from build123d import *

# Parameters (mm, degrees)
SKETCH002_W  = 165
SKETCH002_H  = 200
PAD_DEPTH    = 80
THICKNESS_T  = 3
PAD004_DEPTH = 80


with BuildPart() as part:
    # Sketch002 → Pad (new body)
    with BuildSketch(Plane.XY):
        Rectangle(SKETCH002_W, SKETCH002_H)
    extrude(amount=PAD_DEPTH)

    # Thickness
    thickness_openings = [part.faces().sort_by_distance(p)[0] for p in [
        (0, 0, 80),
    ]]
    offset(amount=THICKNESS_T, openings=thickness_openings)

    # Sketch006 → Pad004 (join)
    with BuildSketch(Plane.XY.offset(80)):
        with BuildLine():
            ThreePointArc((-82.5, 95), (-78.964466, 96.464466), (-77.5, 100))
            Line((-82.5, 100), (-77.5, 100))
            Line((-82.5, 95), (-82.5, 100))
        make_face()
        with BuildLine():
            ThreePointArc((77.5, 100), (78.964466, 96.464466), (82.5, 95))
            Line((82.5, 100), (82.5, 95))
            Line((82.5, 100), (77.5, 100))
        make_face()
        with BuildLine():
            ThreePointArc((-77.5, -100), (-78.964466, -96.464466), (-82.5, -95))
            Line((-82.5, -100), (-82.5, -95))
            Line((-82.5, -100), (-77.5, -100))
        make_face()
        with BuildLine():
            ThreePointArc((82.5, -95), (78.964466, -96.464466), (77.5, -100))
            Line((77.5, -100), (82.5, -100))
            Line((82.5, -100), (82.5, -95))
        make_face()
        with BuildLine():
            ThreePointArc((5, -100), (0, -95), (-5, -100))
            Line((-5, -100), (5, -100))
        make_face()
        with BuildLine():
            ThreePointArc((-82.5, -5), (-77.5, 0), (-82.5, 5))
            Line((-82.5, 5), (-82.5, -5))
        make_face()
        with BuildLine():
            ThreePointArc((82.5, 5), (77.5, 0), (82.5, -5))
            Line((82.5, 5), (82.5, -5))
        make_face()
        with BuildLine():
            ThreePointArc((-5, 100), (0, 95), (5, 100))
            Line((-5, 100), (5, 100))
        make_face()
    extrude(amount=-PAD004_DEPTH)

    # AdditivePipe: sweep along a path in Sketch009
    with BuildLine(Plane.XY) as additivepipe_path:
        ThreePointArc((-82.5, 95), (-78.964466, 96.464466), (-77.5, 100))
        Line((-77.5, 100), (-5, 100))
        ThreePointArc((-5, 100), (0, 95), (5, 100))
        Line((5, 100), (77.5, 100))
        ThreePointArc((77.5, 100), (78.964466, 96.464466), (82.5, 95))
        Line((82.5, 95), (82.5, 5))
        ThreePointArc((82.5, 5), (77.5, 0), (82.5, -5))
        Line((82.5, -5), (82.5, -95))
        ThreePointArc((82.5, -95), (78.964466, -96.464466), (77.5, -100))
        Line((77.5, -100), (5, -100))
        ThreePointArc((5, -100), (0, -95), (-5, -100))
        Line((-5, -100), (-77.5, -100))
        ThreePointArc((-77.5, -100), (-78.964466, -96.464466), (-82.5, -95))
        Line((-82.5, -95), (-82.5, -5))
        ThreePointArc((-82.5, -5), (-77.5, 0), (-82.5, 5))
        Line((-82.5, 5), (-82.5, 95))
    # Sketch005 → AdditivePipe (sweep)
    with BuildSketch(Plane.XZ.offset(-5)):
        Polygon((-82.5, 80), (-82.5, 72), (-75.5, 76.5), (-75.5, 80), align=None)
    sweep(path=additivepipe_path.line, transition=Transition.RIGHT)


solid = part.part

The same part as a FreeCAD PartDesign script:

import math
import FreeCAD as App
import Part
import Sketcher
from FreeCAD import Vector
Q = App.Units.Quantity


def faces_at(feature, points):
    """Names of the faces that lie closest to the given points."""
    faces = feature.Shape.Faces
    near = lambda p: min(range(len(faces)), key=lambda i: faces[i].distToShape(Part.Vertex(*p))[0])
    return sorted({f"Face{near(p) + 1}" for p in points})


def add_polygon(sketch, points):
    """Adds a closed chain of lines whose ends are joined by coincident constraints."""
    first, n = sketch.GeometryCount, len(points)
    for a, b in zip(points, points[1:] + points[:1]):
        sketch.addGeometry(Part.LineSegment(App.Vector(*a, 0), App.Vector(*b, 0)), False)
    for i in range(n):
        sketch.addConstraint(Sketcher.Constraint("Coincident", first + i, 2, first + (i + 1) % n, 1))

doc = App.newDocument("Part")
body = doc.addObject("PartDesign::Body", "Body")

sketch1 = doc.addObject("Sketcher::SketchObject", "Sketch")
body.addObject(sketch1)
sketch1.AttachmentSupport = (doc.XY_Plane, [""])
sketch1.MapMode = "FlatFace"
add_polygon(sketch1, [(-82, 100), (-82, -100), (82, -100), (82, 100)])
sketch1.addConstraint([
    Sketcher.Constraint("Vertical", 0),
    Sketcher.Constraint("Horizontal", 1),
    Sketcher.Constraint("Vertical", 2),
    Sketcher.Constraint("Horizontal", 3),
    Sketcher.Constraint("Symmetric", 0, 2, 2, 2, -1, 1),
    Sketcher.Constraint("DistanceX", 1, 1, 1, 2, Q("165 mm")),
    Sketcher.Constraint("DistanceY", 0, 2, 0, 1, Q("200 mm")),
])
pad1 = doc.addObject("PartDesign::Pad", "Pad")
body.addObject(pad1)
pad1.Profile = sketch1
pad1.Length = 80
doc.recompute()

thickness = doc.addObject("PartDesign::Thickness", "Thickness")
body.addObject(thickness)
thickness.Base = (pad1, faces_at(pad1, [(0, 0, 80)]))
thickness.Value = 3
thickness.Reversed = False
thickness.Join = "Arc"

sketch2 = doc.addObject("Sketcher::SketchObject", "Sketch001")
body.addObject(sketch2)
sketch2.AttachmentSupport = (doc.XY_Plane, [""])
sketch2.MapMode = "FlatFace"
sketch2.AttachmentOffset = App.Placement(Vector(0, 0, 80), App.Rotation())
sketch2.addGeometry([
    Part.ArcOfCircle(Part.Circle(Vector(-82.5, 100, 0), Vector(0, 0, 1), 5), math.radians(-90), math.radians(0)),
    Part.LineSegment(Vector(-77.5, 100, 0), Vector(-82.5, 100, 0)),
    Part.LineSegment(Vector(-82.5, 100, 0), Vector(-82.5, 95, 0)),
    Part.ArcOfCircle(Part.Circle(Vector(82.5, 100, 0), Vector(0, 0, 1), 5), math.radians(180), math.radians(270)),
    Part.LineSegment(Vector(82.5, 95, 0), Vector(82.5, 100, 0)),
    Part.LineSegment(Vector(82.5, 100, 0), Vector(77.5, 100, 0)),
    Part.ArcOfCircle(Part.Circle(Vector(-82.5, -100, 0), Vector(0, 0, 1), 5), math.radians(0), math.radians(90)),
    Part.LineSegment(Vector(-82.5, -95, 0), Vector(-82.5, -100, 0)),
    Part.LineSegment(Vector(-82.5, -100, 0), Vector(-77.5, -100, 0)),
    Part.ArcOfCircle(Part.Circle(Vector(82.5, -100, 0), Vector(0, 0, 1), 5), math.radians(90), math.radians(180)),
    Part.LineSegment(Vector(77.5, -100, 0), Vector(82.5, -100, 0)),
    Part.LineSegment(Vector(82.5, -100, 0), Vector(82.5, -95, 0)),
    Part.ArcOfCircle(Part.Circle(Vector(0, -100, 0), Vector(0, 0, 1), 5), math.radians(0), math.radians(180)),
    Part.LineSegment(Vector(-5, -100, 0), Vector(5, -100, 0)),
    Part.ArcOfCircle(Part.Circle(Vector(-82.5, 0, 0), Vector(0, 0, 1), 5), math.radians(-90), math.radians(90)),
    Part.LineSegment(Vector(-82.5, 5, 0), Vector(-82.5, -5, 0)),
    Part.ArcOfCircle(Part.Circle(Vector(82.5, 0, 0), Vector(0, 0, 1), 5), math.radians(90), math.radians(270)),
    Part.LineSegment(Vector(82.5, -5, 0), Vector(82.5, 5, 0)),
    Part.ArcOfCircle(Part.Circle(Vector(0, 100, 0), Vector(0, 0, 1), 5), math.radians(180), math.radians(360)),
    Part.LineSegment(Vector(5, 100, 0), Vector(-5, 100, 0)),
], False)
sketch2.addConstraint([
    Sketcher.Constraint("Coincident", 0, 2, 1, 1),
    Sketcher.Constraint("Coincident", 1, 2, 2, 1),
    Sketcher.Constraint("Coincident", 2, 2, 0, 1),
    Sketcher.Constraint("Coincident", 3, 2, 4, 1),
    Sketcher.Constraint("Coincident", 4, 2, 5, 1),
    Sketcher.Constraint("Coincident", 5, 2, 3, 1),
    Sketcher.Constraint("Coincident", 6, 2, 7, 1),
    Sketcher.Constraint("Coincident", 7, 2, 8, 1),
    Sketcher.Constraint("Coincident", 8, 2, 6, 1),
    Sketcher.Constraint("Coincident", 9, 2, 10, 1),
    Sketcher.Constraint("Coincident", 10, 2, 11, 1),
    Sketcher.Constraint("Coincident", 11, 2, 9, 1),
    Sketcher.Constraint("Coincident", 12, 1, 13, 2),
    Sketcher.Constraint("Coincident", 13, 1, 12, 2),
    Sketcher.Constraint("Coincident", 14, 1, 15, 2),
    Sketcher.Constraint("Coincident", 15, 1, 14, 2),
    Sketcher.Constraint("Coincident", 16, 1, 17, 2),
    Sketcher.Constraint("Coincident", 17, 1, 16, 2),
    Sketcher.Constraint("Coincident", 18, 1, 19, 2),
    Sketcher.Constraint("Coincident", 19, 1, 18, 2),
    Sketcher.Constraint("Horizontal", 1),
    Sketcher.Constraint("Vertical", 2),
    Sketcher.Constraint("Vertical", 4),
    Sketcher.Constraint("Horizontal", 5),
    Sketcher.Constraint("Vertical", 7),
    Sketcher.Constraint("Horizontal", 8),
    Sketcher.Constraint("Horizontal", 10),
    Sketcher.Constraint("Vertical", 11),
    Sketcher.Constraint("Horizontal", 13),
    Sketcher.Constraint("Vertical", 15),
    Sketcher.Constraint("Vertical", 17),
    Sketcher.Constraint("Horizontal", 19),
    Sketcher.Constraint("Coincident", 1, 2, 0, 3),
    Sketcher.Constraint("Coincident", 4, 2, 3, 3),
    Sketcher.Constraint("Coincident", 7, 2, 6, 3),
    Sketcher.Constraint("Coincident", 10, 2, 9, 3),
    Sketcher.Constraint("Equal", 0, 3),
    Sketcher.Constraint("Equal", 3, 6),
    Sketcher.Constraint("Equal", 6, 9),
    Sketcher.Constraint("Equal", 9, 12),
    Sketcher.Constraint("Equal", 12, 14),
    Sketcher.Constraint("Equal", 14, 16),
    Sketcher.Constraint("Equal", 16, 18),
    Sketcher.Constraint("Symmetric", 3, 3, 6, 3, -1, 1),
    Sketcher.Constraint("Symmetric", 0, 3, 9, 3, -1, 1),
    Sketcher.Constraint("Symmetric", 14, 3, 16, 3, -1, 1),
    Sketcher.Constraint("Symmetric", 12, 3, 18, 3, -1, 1),
    Sketcher.Constraint("Symmetric", 0, 3, 3, 3, -2),
    Sketcher.Constraint("Symmetric", 15, 1, 16, 1, -2),
    Sketcher.Constraint("Symmetric", 13, 1, 18, 1, -1),
    Sketcher.Constraint("Horizontal", 9, 3, 12, 3),
    Sketcher.Constraint("Horizontal", 10, 2, 12, 1),
    Sketcher.Constraint("Vertical", 6, 3, 14, 3),
    Sketcher.Constraint("Vertical", 7, 2, 14, 1),
    Sketcher.Constraint("Radius", 0, Q("5 mm")),
    Sketcher.Constraint("DistanceY", -1, 1, 0, 3, Q("100 mm")),
    Sketcher.Constraint("DistanceX", 0, 3, 3, 3, Q("164.999999 mm")),
])
pad2 = doc.addObject("PartDesign::Pad", "Pad001")
body.addObject(pad2)
pad2.Profile = sketch2
pad2.Length = 80
pad2.Reversed = True

sketch3 = doc.addObject("Sketcher::SketchObject", "Sketch002")
body.addObject(sketch3)
sketch3.AttachmentSupport = (doc.XZ_Plane, [""])
sketch3.MapMode = "FlatFace"
sketch3.AttachmentOffset = App.Placement(Vector(0, 0, -5), App.Rotation())
add_polygon(sketch3, [(-82.5, 80), (-82.5, 72), (-75.5, 76.5), (-75.5, 80)])
sketch3.addConstraint([
    Sketcher.Constraint("Vertical", 0),
    Sketcher.Constraint("Vertical", 2),
    Sketcher.Constraint("Horizontal", 3),
    Sketcher.Constraint("DistanceX", 3, 2, 3, 1, Q("7 mm")),
    Sketcher.Constraint("DistanceY", 0, 2, 0, 1, Q("8 mm")),
    Sketcher.Constraint("DistanceY", 2, 1, 2, 2, Q("3.5 mm")),
    Sketcher.Constraint("DistanceY", -1, 1, 0, 2, Q("72 mm")),
    Sketcher.Constraint("DistanceX", 0, 2, -1, 1, Q("82.5 mm")),
])

sketch4 = doc.addObject("Sketcher::SketchObject", "Sketch003")
body.addObject(sketch4)
sketch4.AttachmentSupport = (doc.XY_Plane, [""])
sketch4.MapMode = "FlatFace"
sketch4.addGeometry([
    Part.ArcOfCircle(Part.Circle(Vector(-82.5, 100, 0), Vector(0, 0, 1), 5), math.radians(-90), math.radians(0)),
    Part.LineSegment(Vector(-77.5, 100, 0), Vector(-5, 100, 0)),
    Part.ArcOfCircle(Part.Circle(Vector(0, 100, 0), Vector(0, 0, 1), 5), math.radians(180), math.radians(360)),
    Part.LineSegment(Vector(5, 100, 0), Vector(77.5, 100, 0)),
    Part.ArcOfCircle(Part.Circle(Vector(82.5, 100, 0), Vector(0, 0, 1), 5), math.radians(180), math.radians(270)),
    Part.LineSegment(Vector(82.5, 95, 0), Vector(82.5, 5, 0)),
    Part.ArcOfCircle(Part.Circle(Vector(82.5, 0, 0), Vector(0, 0, 1), 5), math.radians(90), math.radians(270)),
    Part.LineSegment(Vector(82.5, -5, 0), Vector(82.5, -95, 0)),
    Part.ArcOfCircle(Part.Circle(Vector(82.5, -100, 0), Vector(0, 0, 1), 5), math.radians(90), math.radians(180)),
    Part.LineSegment(Vector(77.5, -100, 0), Vector(5, -100, 0)),
    Part.ArcOfCircle(Part.Circle(Vector(0, -100, 0), Vector(0, 0, 1), 5), math.radians(0), math.radians(180)),
    Part.LineSegment(Vector(-5, -100, 0), Vector(-77.5, -100, 0)),
    Part.ArcOfCircle(Part.Circle(Vector(-82.5, -100, 0), Vector(0, 0, 1), 5), math.radians(0), math.radians(90)),
    Part.LineSegment(Vector(-82.5, -95, 0), Vector(-82.5, -5, 0)),
    Part.ArcOfCircle(Part.Circle(Vector(-82.5, 0, 0), Vector(0, 0, 1), 5), math.radians(-90), math.radians(90)),
    Part.LineSegment(Vector(-82.5, 5, 0), Vector(-82.5, 95, 0)),
], False)
sketch4.addConstraint([
    Sketcher.Constraint("Coincident", 0, 2, 1, 1),
    Sketcher.Constraint("Coincident", 1, 2, 2, 1),
    Sketcher.Constraint("Coincident", 2, 2, 3, 1),
    Sketcher.Constraint("Coincident", 3, 2, 4, 1),
    Sketcher.Constraint("Coincident", 4, 2, 5, 1),
    Sketcher.Constraint("Coincident", 5, 2, 6, 1),
    Sketcher.Constraint("Coincident", 6, 2, 7, 1),
    Sketcher.Constraint("Coincident", 7, 2, 8, 1),
    Sketcher.Constraint("Coincident", 8, 2, 9, 1),
    Sketcher.Constraint("Coincident", 9, 2, 10, 1),
    Sketcher.Constraint("Coincident", 10, 2, 11, 1),
    Sketcher.Constraint("Coincident", 11, 2, 12, 1),
    Sketcher.Constraint("Coincident", 12, 2, 13, 1),
    Sketcher.Constraint("Coincident", 13, 2, 14, 1),
    Sketcher.Constraint("Coincident", 14, 2, 15, 1),
    Sketcher.Constraint("Coincident", 15, 2, 0, 1),
    Sketcher.Constraint("Horizontal", 1),
    Sketcher.Constraint("Horizontal", 3),
    Sketcher.Constraint("Vertical", 5),
    Sketcher.Constraint("Vertical", 7),
    Sketcher.Constraint("Horizontal", 9),
    Sketcher.Constraint("Horizontal", 11),
    Sketcher.Constraint("Vertical", 13),
    Sketcher.Constraint("Vertical", 15),
    Sketcher.Constraint("Equal", 0, 2),
    Sketcher.Constraint("Equal", 2, 4),
    Sketcher.Constraint("Equal", 4, 6),
    Sketcher.Constraint("Equal", 6, 8),
    Sketcher.Constraint("Equal", 8, 10),
    Sketcher.Constraint("Equal", 10, 12),
    Sketcher.Constraint("Equal", 12, 14),
    Sketcher.Constraint("Symmetric", 0, 3, 8, 3, -1, 1),
    Sketcher.Constraint("Symmetric", 2, 3, 10, 3, -1, 1),
    Sketcher.Constraint("Symmetric", 4, 3, 12, 3, -1, 1),
    Sketcher.Constraint("Symmetric", 6, 3, 14, 3, -1, 1),
    Sketcher.Constraint("Symmetric", 0, 3, 4, 3, -2),
    Sketcher.Constraint("Symmetric", 1, 2, 2, 2, -2),
    Sketcher.Constraint("Symmetric", 6, 2, 13, 2, -2),
    Sketcher.Constraint("Horizontal", 0, 3, 2, 3),
    Sketcher.Constraint("Horizontal", 4, 3, 0, 2),
    Sketcher.Constraint("Horizontal", 12, 3, 8, 2),
    Sketcher.Constraint("Horizontal", 9, 2, 10, 2),
    Sketcher.Constraint("Vertical", 4, 3, 6, 3),
    Sketcher.Constraint("Vertical", 8, 3, 4, 2),
    Sketcher.Constraint("Vertical", 5, 2, 6, 2),
    Sketcher.Constraint("Vertical", 13, 2, 14, 2),
    Sketcher.Constraint("Radius", 0, Q("5 mm")),
    Sketcher.Constraint("DistanceY", 5, 2, 5, 1, Q("90 mm")),
    Sketcher.Constraint("DistanceX", 1, 1, 1, 2, Q("72.5 mm")),
])
doc.recompute()

additivepipe = doc.addObject("PartDesign::AdditivePipe", "AdditivePipe")
body.addObject(additivepipe)
additivepipe.Profile = sketch3
additivepipe.Spine = (sketch4, ["Edge1", "Edge2", "Edge3", "Edge4", "Edge5", "Edge6", "Edge7", "Edge8", "Edge9", "Edge10", "Edge11", "Edge12", "Edge13", "Edge14", "Edge15", "Edge16"])
additivepipe.Transition = "Right corner"

doc.recompute()
